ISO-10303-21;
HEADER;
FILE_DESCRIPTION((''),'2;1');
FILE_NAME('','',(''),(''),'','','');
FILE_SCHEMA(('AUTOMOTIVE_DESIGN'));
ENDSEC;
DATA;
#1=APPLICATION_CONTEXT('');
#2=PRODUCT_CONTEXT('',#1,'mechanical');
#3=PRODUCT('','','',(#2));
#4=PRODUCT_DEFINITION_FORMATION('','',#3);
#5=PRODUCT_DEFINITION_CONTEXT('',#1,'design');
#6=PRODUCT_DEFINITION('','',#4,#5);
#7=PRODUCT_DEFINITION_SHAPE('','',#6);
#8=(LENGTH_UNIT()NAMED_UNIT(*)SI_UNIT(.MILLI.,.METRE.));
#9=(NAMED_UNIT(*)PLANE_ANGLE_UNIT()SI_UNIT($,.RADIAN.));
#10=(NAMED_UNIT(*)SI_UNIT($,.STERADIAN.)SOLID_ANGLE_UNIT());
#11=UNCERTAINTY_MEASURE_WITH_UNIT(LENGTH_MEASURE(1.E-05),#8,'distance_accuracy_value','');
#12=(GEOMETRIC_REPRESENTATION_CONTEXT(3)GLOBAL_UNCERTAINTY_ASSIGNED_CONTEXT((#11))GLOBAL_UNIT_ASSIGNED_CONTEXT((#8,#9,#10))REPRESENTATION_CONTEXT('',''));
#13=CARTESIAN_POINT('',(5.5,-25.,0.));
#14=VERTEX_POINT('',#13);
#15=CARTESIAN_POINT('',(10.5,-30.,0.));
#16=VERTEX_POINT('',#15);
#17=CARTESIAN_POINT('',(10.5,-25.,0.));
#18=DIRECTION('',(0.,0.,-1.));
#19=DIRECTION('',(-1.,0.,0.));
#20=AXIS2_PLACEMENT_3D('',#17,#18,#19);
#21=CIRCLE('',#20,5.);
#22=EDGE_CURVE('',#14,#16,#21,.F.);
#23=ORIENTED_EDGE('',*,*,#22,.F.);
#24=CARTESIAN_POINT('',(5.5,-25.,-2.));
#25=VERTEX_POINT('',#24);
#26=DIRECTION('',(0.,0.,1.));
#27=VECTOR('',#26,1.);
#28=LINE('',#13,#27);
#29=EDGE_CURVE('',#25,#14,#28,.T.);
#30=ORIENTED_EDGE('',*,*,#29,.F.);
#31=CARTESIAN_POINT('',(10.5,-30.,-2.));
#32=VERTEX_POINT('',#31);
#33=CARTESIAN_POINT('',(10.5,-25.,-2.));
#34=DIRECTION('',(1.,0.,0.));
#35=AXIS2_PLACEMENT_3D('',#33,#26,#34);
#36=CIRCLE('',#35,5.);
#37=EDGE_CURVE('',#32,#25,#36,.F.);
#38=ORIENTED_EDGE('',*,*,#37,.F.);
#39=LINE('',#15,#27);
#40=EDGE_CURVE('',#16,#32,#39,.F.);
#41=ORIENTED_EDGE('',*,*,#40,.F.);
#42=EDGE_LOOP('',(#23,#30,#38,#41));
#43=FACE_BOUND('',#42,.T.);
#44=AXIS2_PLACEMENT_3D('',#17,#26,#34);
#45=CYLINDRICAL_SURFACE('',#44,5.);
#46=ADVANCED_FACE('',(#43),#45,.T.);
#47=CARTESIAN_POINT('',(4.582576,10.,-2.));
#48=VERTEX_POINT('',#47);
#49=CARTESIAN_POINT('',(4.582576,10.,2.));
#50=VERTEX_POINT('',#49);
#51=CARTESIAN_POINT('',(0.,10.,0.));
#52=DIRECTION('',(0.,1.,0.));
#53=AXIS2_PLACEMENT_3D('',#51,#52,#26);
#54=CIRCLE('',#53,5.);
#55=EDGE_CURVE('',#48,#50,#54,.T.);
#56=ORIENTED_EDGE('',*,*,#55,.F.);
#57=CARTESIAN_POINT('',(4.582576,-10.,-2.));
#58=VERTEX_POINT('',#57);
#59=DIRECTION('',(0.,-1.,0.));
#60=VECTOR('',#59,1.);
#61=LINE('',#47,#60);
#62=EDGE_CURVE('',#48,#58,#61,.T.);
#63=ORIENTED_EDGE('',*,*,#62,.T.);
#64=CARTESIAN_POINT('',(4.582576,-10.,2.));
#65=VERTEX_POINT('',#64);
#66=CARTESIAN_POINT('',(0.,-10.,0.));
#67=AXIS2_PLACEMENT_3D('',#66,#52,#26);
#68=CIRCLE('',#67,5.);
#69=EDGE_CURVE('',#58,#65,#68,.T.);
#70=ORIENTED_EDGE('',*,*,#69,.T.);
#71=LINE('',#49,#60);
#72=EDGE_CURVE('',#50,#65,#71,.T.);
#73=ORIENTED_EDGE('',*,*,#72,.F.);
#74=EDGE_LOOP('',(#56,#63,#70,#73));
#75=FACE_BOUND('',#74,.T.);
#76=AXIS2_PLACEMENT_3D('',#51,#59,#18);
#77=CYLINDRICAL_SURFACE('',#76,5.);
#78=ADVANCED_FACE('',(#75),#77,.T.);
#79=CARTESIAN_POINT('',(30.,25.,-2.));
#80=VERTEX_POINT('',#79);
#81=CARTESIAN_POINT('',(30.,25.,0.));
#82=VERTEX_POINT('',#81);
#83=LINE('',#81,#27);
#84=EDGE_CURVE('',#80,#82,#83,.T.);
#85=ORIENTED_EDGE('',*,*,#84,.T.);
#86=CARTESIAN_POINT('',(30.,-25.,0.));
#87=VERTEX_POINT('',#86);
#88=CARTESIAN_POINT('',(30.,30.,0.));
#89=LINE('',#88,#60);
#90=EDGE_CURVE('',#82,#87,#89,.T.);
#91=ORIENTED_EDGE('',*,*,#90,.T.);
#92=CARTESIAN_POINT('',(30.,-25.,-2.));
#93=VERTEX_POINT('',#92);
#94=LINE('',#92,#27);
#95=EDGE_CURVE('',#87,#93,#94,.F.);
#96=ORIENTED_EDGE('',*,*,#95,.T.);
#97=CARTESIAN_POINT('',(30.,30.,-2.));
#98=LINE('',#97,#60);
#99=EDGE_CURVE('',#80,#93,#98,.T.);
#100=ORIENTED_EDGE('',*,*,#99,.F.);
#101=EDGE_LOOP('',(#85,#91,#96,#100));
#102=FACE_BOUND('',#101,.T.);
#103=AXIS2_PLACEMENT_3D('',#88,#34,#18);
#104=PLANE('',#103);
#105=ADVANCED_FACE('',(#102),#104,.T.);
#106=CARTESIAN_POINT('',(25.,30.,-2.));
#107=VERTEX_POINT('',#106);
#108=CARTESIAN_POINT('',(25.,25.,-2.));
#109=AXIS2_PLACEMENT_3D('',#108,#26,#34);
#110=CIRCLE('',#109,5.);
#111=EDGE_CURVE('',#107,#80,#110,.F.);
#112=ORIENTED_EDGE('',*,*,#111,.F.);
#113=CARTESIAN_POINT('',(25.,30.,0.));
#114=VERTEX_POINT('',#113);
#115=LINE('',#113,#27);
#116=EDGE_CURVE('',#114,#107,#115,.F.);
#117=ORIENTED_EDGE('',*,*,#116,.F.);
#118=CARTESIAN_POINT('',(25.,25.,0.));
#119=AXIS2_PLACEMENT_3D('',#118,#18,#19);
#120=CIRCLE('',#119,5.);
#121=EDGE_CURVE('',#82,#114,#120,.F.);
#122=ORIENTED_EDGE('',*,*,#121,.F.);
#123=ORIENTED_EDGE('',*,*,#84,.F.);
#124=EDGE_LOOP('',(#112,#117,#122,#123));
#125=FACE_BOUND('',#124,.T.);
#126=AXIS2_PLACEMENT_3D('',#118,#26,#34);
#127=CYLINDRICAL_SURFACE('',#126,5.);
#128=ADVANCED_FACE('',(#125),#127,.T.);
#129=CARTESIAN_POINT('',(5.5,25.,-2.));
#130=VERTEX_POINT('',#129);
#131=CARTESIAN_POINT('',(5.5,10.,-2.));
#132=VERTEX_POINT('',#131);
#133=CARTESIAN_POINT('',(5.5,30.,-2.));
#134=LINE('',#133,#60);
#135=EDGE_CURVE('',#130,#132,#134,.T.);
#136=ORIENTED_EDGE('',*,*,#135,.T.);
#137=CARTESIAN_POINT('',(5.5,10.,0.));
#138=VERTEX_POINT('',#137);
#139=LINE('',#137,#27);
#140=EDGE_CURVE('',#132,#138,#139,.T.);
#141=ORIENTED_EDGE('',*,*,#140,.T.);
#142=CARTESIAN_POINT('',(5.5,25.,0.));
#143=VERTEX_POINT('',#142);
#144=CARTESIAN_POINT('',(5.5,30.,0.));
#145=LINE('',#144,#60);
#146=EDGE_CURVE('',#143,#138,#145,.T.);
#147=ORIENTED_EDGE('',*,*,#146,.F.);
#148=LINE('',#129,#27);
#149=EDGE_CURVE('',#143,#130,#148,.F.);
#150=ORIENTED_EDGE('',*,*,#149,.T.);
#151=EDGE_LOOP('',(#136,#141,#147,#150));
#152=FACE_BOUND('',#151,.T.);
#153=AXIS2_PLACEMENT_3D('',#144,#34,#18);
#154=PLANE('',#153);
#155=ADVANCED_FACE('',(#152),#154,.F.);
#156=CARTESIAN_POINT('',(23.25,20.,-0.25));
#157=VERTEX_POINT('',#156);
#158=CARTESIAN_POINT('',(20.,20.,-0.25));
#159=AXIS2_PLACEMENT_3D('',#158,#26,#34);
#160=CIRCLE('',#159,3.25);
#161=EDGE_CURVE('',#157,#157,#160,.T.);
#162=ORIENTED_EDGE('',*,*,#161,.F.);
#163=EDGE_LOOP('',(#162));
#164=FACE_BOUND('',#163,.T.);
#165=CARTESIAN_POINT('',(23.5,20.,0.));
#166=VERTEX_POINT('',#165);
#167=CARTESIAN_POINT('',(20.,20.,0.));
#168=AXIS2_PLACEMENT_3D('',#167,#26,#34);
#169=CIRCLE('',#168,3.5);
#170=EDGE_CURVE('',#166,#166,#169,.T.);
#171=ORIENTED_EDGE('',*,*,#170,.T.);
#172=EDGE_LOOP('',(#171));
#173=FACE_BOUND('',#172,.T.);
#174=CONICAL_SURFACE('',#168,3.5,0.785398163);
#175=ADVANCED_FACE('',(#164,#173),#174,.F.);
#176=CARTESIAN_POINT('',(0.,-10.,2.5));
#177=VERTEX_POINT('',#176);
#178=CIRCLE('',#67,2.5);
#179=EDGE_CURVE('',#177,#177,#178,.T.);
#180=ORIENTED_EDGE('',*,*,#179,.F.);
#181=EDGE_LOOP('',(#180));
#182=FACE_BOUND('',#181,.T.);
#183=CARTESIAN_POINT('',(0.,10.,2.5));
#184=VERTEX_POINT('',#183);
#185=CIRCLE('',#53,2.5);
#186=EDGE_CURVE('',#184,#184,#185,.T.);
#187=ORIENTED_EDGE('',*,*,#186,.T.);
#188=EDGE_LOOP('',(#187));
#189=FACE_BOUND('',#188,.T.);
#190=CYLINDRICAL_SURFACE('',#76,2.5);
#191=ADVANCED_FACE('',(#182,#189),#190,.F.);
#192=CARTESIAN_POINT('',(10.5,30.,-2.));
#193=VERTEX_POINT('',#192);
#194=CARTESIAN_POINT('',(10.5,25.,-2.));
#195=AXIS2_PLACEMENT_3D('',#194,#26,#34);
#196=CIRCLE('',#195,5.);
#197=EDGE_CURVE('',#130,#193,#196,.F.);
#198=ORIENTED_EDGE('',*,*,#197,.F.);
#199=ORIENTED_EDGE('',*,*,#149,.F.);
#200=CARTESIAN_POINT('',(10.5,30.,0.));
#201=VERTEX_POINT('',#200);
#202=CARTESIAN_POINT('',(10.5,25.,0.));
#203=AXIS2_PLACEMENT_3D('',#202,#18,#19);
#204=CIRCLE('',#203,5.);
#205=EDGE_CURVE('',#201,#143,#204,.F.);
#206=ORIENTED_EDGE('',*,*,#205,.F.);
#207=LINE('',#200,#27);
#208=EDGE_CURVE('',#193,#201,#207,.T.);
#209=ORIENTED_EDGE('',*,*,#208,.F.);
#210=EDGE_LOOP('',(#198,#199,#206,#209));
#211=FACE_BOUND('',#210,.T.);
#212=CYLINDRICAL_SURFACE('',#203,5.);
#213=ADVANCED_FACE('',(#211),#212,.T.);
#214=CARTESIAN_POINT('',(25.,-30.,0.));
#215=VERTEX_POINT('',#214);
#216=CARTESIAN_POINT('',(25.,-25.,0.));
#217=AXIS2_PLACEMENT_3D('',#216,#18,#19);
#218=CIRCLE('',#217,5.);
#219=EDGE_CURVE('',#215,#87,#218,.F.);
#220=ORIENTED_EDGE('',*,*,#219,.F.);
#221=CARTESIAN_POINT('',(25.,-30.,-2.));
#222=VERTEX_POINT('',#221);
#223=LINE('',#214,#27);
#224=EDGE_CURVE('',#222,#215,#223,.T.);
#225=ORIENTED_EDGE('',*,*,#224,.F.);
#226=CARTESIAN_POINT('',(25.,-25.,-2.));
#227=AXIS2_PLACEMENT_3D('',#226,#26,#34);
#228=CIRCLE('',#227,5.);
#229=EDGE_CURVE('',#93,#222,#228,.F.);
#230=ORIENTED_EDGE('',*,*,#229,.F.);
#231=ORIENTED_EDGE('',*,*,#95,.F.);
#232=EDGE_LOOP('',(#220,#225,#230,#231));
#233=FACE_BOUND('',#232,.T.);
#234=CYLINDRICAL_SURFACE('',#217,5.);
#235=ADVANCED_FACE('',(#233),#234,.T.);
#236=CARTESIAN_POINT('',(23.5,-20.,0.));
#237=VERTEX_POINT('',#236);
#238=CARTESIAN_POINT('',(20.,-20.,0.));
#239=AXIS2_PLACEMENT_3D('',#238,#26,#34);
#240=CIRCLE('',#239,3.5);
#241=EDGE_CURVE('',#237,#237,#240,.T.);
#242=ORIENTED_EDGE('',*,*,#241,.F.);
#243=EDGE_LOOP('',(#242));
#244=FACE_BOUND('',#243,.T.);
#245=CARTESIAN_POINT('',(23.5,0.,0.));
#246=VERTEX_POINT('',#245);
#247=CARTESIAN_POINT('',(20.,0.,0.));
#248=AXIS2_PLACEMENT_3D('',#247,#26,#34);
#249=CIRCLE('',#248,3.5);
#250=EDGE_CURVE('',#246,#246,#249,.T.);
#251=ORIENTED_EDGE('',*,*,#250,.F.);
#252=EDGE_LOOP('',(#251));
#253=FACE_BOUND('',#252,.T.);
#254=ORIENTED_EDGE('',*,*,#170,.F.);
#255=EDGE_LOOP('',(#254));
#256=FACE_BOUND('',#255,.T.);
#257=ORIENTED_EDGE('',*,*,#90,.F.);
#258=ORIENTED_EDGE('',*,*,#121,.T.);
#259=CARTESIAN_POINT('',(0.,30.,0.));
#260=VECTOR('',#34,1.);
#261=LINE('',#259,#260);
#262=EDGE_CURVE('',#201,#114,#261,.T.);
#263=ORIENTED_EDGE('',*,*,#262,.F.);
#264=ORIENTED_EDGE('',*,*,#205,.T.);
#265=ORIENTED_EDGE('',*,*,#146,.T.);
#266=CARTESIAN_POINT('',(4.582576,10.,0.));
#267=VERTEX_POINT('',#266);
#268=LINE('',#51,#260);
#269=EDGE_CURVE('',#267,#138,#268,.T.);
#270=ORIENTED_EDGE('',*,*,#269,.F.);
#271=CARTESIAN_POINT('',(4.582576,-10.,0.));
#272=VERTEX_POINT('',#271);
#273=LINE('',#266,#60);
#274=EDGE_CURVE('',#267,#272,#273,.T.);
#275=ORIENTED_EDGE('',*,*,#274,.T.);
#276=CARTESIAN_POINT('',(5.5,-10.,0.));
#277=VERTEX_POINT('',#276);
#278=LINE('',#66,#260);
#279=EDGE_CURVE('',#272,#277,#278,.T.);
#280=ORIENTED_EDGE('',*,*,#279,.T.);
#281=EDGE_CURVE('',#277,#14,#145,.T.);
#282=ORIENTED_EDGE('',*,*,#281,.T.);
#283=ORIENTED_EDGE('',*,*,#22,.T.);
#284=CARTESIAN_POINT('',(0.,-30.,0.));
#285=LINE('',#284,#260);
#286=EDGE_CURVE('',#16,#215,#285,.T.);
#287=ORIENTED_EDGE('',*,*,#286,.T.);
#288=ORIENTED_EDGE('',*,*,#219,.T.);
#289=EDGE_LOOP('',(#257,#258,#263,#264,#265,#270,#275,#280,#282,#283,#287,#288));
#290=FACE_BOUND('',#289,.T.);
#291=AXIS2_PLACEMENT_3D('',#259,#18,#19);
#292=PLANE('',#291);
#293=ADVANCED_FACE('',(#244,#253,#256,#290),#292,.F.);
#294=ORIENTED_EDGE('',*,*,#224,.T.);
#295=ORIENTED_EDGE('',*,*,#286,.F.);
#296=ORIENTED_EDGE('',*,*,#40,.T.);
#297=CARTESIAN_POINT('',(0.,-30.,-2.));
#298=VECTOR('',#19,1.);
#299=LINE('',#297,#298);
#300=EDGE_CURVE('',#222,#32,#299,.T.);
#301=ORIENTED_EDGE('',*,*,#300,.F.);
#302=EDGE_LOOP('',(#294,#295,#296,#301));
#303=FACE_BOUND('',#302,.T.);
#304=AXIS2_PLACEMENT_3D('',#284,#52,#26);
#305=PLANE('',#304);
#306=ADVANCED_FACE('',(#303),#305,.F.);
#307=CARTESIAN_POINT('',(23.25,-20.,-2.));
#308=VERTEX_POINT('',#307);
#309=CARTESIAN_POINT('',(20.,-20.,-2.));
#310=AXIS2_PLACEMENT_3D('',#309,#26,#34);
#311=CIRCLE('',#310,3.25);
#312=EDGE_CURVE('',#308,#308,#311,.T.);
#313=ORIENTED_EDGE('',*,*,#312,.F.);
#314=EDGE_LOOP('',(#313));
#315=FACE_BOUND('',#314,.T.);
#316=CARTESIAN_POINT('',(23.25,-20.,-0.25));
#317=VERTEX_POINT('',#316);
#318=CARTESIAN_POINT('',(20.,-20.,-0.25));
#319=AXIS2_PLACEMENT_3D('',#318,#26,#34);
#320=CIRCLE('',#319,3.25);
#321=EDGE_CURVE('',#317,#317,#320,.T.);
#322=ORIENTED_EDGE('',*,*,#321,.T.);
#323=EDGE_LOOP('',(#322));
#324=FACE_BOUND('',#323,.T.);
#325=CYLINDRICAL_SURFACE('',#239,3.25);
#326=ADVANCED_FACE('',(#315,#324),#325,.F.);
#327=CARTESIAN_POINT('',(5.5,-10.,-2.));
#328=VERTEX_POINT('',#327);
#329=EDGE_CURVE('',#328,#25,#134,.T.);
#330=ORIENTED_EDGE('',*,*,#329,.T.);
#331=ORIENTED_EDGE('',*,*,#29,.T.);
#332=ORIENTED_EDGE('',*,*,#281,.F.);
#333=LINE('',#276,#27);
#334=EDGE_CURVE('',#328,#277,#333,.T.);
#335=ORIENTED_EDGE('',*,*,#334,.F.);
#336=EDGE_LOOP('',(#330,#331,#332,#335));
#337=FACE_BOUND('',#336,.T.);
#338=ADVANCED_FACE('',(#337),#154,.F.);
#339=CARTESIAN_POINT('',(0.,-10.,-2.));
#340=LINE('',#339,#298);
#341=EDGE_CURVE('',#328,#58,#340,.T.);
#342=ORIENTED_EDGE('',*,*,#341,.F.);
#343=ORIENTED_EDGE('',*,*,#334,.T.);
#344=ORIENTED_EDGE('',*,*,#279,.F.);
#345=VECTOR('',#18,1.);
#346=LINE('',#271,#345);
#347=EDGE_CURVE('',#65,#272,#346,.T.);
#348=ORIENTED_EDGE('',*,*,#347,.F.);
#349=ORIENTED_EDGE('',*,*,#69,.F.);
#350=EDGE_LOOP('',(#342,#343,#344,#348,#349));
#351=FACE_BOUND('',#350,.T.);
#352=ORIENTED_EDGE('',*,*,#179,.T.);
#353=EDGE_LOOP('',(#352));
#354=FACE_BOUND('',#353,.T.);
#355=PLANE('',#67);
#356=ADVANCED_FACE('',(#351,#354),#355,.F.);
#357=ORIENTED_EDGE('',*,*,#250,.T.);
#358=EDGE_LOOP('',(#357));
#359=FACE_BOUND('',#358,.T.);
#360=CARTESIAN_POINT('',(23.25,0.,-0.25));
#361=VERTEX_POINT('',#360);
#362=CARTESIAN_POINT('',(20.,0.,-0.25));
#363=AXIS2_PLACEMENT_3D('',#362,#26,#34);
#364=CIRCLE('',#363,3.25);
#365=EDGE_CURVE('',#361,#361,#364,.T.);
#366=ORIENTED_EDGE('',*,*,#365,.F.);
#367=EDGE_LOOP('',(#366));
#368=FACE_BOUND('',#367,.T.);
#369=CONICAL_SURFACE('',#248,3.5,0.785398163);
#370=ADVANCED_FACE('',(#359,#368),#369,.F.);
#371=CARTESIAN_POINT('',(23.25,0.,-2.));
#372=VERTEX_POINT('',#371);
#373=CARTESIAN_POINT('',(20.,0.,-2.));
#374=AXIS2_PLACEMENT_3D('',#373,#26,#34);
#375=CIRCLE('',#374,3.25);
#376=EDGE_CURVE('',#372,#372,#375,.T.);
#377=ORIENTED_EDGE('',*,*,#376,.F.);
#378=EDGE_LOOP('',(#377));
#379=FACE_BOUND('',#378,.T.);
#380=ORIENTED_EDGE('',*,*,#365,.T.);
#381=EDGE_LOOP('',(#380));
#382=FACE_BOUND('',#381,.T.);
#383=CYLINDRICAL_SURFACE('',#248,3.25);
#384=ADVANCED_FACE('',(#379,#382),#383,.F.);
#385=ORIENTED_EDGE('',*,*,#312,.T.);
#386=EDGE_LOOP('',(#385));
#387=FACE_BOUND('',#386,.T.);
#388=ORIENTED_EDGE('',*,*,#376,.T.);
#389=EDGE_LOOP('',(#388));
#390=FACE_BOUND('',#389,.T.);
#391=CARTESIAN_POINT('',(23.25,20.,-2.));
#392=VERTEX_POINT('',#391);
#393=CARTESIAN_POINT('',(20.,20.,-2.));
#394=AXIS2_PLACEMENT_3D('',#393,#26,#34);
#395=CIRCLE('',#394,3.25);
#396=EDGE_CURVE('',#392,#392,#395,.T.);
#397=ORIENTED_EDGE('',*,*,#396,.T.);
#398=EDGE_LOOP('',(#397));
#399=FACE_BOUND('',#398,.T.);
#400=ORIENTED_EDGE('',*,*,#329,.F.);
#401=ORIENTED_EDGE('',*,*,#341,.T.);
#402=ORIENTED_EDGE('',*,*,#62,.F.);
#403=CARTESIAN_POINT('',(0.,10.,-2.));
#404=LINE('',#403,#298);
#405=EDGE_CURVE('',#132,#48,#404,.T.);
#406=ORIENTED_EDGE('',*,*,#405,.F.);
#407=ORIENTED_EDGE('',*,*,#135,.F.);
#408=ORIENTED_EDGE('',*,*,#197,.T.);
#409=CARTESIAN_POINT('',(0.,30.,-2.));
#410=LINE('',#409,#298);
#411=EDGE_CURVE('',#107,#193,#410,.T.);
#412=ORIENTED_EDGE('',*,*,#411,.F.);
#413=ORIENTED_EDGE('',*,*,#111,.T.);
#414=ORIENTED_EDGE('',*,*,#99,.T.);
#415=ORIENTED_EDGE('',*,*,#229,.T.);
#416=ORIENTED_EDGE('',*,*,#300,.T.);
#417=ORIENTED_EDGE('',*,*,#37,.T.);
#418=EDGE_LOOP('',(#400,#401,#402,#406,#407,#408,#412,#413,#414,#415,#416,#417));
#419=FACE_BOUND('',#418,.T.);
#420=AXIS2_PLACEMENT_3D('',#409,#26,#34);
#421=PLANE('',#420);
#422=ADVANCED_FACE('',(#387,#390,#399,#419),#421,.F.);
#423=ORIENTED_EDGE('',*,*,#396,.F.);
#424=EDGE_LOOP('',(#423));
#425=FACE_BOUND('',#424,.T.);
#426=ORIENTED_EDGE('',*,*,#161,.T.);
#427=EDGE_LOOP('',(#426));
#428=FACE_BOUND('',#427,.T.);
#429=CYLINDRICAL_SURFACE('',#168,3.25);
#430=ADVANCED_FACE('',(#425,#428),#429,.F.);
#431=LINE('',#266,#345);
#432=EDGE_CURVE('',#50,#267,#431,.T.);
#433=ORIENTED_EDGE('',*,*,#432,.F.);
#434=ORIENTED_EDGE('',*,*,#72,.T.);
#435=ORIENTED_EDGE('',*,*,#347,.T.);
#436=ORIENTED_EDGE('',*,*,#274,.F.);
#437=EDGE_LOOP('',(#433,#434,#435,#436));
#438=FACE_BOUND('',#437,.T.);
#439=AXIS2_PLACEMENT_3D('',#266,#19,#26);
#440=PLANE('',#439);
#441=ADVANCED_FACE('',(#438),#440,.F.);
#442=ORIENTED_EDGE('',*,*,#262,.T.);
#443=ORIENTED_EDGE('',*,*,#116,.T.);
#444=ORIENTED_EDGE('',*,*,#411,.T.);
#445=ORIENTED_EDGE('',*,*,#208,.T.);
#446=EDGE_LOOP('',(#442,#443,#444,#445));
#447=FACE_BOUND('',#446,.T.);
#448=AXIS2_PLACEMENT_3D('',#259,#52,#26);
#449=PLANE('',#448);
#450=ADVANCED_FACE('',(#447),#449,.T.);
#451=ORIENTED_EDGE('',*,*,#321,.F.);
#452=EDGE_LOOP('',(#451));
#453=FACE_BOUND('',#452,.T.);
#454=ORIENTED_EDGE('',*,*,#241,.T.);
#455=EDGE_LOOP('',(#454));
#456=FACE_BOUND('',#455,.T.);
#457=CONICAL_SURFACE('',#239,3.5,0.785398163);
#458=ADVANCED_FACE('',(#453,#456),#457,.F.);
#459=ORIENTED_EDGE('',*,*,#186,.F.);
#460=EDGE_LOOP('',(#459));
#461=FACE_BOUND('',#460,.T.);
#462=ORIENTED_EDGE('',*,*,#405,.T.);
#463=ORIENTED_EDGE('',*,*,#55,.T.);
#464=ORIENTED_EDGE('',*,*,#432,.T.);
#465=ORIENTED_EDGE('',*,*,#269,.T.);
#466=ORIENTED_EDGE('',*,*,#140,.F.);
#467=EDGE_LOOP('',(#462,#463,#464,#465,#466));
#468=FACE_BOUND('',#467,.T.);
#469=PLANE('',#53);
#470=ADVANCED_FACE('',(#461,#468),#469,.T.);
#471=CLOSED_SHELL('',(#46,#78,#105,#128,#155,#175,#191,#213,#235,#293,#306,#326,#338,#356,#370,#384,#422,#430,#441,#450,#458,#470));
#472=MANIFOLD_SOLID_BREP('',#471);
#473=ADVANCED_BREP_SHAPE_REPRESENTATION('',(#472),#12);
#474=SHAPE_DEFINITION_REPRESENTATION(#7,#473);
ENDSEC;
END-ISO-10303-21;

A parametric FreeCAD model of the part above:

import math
import FreeCAD as App
import Part
import Sketcher

V = App.Vector
Q = App.Units.Quantity


def edges_at(feature, points):
    """Names of the edges that pass closest to the given points."""
    edges = feature.Shape.Edges
    near = lambda p: min(range(len(edges)), key=lambda i: edges[i].distToShape(Part.Vertex(*p))[0])
    return sorted({f"Edge{near(p) + 1}" for p in points})

doc = App.newDocument("Part")
body = doc.addObject("PartDesign::Body", "Body")

sketch1 = body.newObject("Sketcher::SketchObject", "Sketch")
sketch1.AttachmentSupport = (doc.getObject("XZ_Plane"), [""])
sketch1.MapMode = "FlatFace"
sketch1.addGeometry([
    Part.LineSegment(V(5.5, -2, 0), V(5.5, 0, 0)),
    Part.LineSegment(V(5.5, 0, 0), V(30, 0, 0)),
    Part.LineSegment(V(30, 0, 0), V(30, -2, 0)),
    Part.LineSegment(V(30, -2, 0), V(5.5, -2, 0)),
], False)
sketch1.addConstraint([
    Sketcher.Constraint("Coincident", 0, 2, 1, 1),
    Sketcher.Constraint("Coincident", 1, 2, 2, 1),
    Sketcher.Constraint("Coincident", 2, 2, 3, 1),
    Sketcher.Constraint("Coincident", 3, 2, 0, 1),
    Sketcher.Constraint("Vertical", 0),
    Sketcher.Constraint("Horizontal", 1),
    Sketcher.Constraint("Vertical", 2),
    Sketcher.Constraint("Horizontal", 3),
    Sketcher.Constraint("PointOnObject", 0, 2, -1),
    Sketcher.Constraint("DistanceY", 0, 1, 0, 2, Q("2 mm")),
    Sketcher.Constraint("DistanceX", 1, 1, 1, 2, Q("24.5 mm")),
    Sketcher.Constraint("DistanceX", -1, 1, 1, 2, Q("30 mm")),
])
pad1 = body.newObject("PartDesign::Pad", "Pad")
pad1.Profile = sketch1
pad1.Length = 60
pad1.Midplane = True

sketch2 = body.newObject("Sketcher::SketchObject", "Sketch001")
sketch2.AttachmentSupport = (doc.getObject("XZ_Plane"), [""])
sketch2.MapMode = "FlatFace"
sketch2.addGeometry([
    Part.LineSegment(V(5.5, 0, 0), V(5.5, -2, 0)),
    Part.LineSegment(V(5.5, -2, 0), V(4.6, -2, 0)),
    Part.ArcOfCircle(Part.Circle(V(0, 0, 0), V(0, 0, 1), 5), math.radians(24), math.radians(336)),
    Part.LineSegment(V(4.6, 2, 0), V(4.6, 0, 0)),
    Part.LineSegment(V(4.6, 0, 0), V(5.5, 0, 0)),
    Part.Circle(V(0, 0, 0), V(0, 0, 1), 2.5),
], False)
sketch2.addConstraint([
    Sketcher.Constraint("Coincident", 0, 2, 1, 1),
    Sketcher.Constraint("Coincident", 1, 2, 2, 2),
    Sketcher.Constraint("Coincident", 2, 1, 3, 1),
    Sketcher.Constraint("Coincident", 3, 2, 4, 1),
    Sketcher.Constraint("Coincident", 4, 2, 0, 1),
    Sketcher.Constraint("Vertical", 0),
    Sketcher.Constraint("Horizontal", 1),
    Sketcher.Constraint("Vertical", 3),
    Sketcher.Constraint("Horizontal", 4),
    Sketcher.Constraint("Coincident", 2, 3, -1, 1),
    Sketcher.Constraint("Coincident", 5, 3, -1, 1),
    Sketcher.Constraint("PointOnObject", 3, 2, -1),
    Sketcher.Constraint("Vertical", 1, 2, 2, 1),
    Sketcher.Constraint("Diameter", 5, Q("5 mm")),
    Sketcher.Constraint("Radius", 2, Q("5 mm")),
    Sketcher.Constraint("DistanceY", 0, 2, 0, 1, Q("2 mm")),
    Sketcher.Constraint("DistanceX", -1, 1, 0, 2, Q("5.5 mm")),
])
pad2 = body.newObject("PartDesign::Pad", "Pad001")
pad2.Profile = sketch2
pad2.Length = 20
pad2.Midplane = True

sketch3 = body.newObject("Sketcher::SketchObject", "Sketch002")
sketch3.AttachmentSupport = (doc.getObject("XY_Plane"), [""])
sketch3.MapMode = "FlatFace"
sketch3.addGeometry([
    Part.Circle(V(20, -20, 0), V(0, 0, 1), 3.2),
    Part.Circle(V(20, 0, 0), V(0, 0, 1), 3.2),
    Part.Circle(V(20, 20, 0), V(0, 0, 1), 3.2),
], False)
sketch3.addConstraint([
    Sketcher.Constraint("Equal", 0, 1),
    Sketcher.Constraint("Equal", 1, 2),
    Sketcher.Constraint("Symmetric", 0, 3, 2, 3, -1),
    Sketcher.Constraint("PointOnObject", 1, 3, -1),
    Sketcher.Constraint("Vertical", 0, 3, 1, 3),
    Sketcher.Constraint("Diameter", 0, Q("6.5 mm")),
    Sketcher.Constraint("DistanceX", -1, 1, 0, 3, Q("20 mm")),
    Sketcher.Constraint("DistanceY", 0, 3, -1, 1, Q("20 mm")),
])
doc.recompute()
hole = body.newObject("PartDesign::Hole", "Hole")
hole.Profile = sketch3
hole.ThreadType = "None"
hole.Diameter = 6.5
hole.DepthType = "ThroughAll"
hole.HoleCutType = "Countersink"
hole.HoleCutDiameter = 7
hole.HoleCutCountersinkAngle = 90
doc.recompute()

fillet = body.newObject("PartDesign::Fillet", "Fillet")
fillet.Base = (hole, edges_at(hole, [
    (30, 30, -1),
    (5.5, 30, -1),
    (30, -30, -1),
    (5.5, -30, -1),
]))
fillet.Radius = 5

doc.recompute()
